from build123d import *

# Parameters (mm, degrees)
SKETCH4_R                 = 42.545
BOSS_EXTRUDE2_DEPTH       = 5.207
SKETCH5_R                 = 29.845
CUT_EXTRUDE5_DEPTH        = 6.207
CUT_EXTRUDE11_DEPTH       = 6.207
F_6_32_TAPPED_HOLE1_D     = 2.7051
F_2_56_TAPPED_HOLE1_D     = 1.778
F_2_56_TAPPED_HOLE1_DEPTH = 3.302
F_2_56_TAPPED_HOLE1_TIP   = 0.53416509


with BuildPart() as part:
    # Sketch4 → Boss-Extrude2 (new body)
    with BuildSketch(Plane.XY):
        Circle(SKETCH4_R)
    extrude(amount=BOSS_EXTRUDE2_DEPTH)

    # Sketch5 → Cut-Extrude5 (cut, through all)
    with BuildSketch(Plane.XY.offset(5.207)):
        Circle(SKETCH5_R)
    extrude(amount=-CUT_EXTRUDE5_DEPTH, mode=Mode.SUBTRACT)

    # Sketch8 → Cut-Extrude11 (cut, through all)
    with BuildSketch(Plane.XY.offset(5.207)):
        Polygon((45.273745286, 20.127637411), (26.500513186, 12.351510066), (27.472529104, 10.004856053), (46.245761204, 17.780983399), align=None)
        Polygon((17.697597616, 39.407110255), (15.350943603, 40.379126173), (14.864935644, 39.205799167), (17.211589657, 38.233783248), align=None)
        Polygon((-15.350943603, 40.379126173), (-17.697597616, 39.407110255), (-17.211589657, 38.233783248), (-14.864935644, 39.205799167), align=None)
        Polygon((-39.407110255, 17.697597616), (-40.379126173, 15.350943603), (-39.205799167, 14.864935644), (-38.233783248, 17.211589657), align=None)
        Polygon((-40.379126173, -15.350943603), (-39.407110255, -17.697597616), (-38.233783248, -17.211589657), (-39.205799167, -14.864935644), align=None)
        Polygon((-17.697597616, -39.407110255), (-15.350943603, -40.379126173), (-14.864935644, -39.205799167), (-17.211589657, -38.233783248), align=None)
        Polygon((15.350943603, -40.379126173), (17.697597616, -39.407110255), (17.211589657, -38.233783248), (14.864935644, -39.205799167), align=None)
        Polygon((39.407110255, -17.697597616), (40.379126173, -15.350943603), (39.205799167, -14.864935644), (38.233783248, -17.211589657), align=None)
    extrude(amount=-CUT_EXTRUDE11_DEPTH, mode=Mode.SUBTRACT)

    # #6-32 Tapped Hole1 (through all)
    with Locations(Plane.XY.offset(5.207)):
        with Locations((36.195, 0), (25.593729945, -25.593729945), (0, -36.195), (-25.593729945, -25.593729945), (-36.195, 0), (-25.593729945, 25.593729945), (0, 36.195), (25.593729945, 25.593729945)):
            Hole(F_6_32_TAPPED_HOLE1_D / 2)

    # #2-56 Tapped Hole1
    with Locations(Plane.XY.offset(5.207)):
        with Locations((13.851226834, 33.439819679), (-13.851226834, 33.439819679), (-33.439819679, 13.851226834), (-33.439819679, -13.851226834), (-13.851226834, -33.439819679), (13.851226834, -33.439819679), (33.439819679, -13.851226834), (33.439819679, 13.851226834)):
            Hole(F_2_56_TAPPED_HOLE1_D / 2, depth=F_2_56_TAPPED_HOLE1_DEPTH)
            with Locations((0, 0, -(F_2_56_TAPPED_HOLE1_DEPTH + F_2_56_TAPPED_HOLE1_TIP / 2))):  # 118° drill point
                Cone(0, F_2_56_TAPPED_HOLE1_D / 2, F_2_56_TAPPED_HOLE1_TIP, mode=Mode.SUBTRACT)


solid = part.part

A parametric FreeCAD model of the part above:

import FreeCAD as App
import Part
import Sketcher

V = App.Vector
Q = App.Units.Quantity

doc = App.newDocument("Part")
body = doc.addObject("PartDesign::Body", "Body")

# Sketch on XY plane
sketch1 = doc.addObject("Sketcher::SketchObject", "Sketch")
body.addObject(sketch1)
sketch1.AttachmentSupport = (doc.XY_Plane, [""])
sketch1.MapMode = "FlatFace"
sketch1.addGeometry(Part.Circle(V(0, 0, 0), V(0, 0, 1), 43), False)
sketch1.addConstraint([
    Sketcher.Constraint("Coincident", 0, 3, -1, 1),
    Sketcher.Constraint("Diameter", 0, Q("3.35 in")),
])
pad1 = doc.addObject("PartDesign::Pad", "Pad")
body.addObject(pad1)
pad1.Profile = sketch1
pad1.Length = Q("0.205 in")

# Sketch on XY plane
sketch2 = doc.addObject("Sketcher::SketchObject", "Sketch001")
body.addObject(sketch2)
sketch2.AttachmentSupport = (doc.XY_Plane, [""])
sketch2.MapMode = "FlatFace"
sketch2.AttachmentOffset = App.Placement(V(0, 0, 0.205 * 25.4), App.Rotation())
sketch2.addGeometry(Part.Circle(V(0, 0, 0), V(0, 0, 1), 30), False)
sketch2.addConstraint([
    Sketcher.Constraint("Coincident", 0, 3, -1, 1),
    Sketcher.Constraint("Diameter", 0, Q("2.35 in")),
])
pocket1 = doc.addObject("PartDesign::Pocket", "Pocket")
body.addObject(pocket1)
pocket1.Profile = sketch2
pocket1.Type = "ThroughAll"

# Sketch on XY plane
sketch3 = doc.addObject("Sketcher::SketchObject", "Sketch002")
body.addObject(sketch3)
sketch3.AttachmentSupport = (doc.XY_Plane, [""])
sketch3.MapMode = "FlatFace"
sketch3.AttachmentOffset = App.Placement(V(0, 0, 0.205 * 25.4), App.Rotation())
sketch3.addGeometry([
    Part.LineSegment(V(45.3, 20.1, 0), V(26.5, 12.4, 0)),  # 0
    Part.LineSegment(V(26.5, 12.4, 0), V(27.5, 10, 0)),  # 1
    Part.LineSegment(V(27.5, 10, 0), V(46.2, 17.8, 0)),  # 2
    Part.LineSegment(V(46.2, 17.8, 0), V(45.3, 20.1, 0)),  # 3
    Part.LineSegment(V(17.7, 39.4, 0), V(15.4, 40.4, 0)),  # 4
    Part.LineSegment(V(15.4, 40.4, 0), V(14.9, 39.2, 0)),  # 5
    Part.LineSegment(V(14.9, 39.2, 0), V(17.2, 38.2, 0)),  # 6
    Part.LineSegment(V(17.2, 38.2, 0), V(17.7, 39.4, 0)),  # 7
    Part.LineSegment(V(-15.4, 40.4, 0), V(-17.7, 39.4, 0)),  # 8
    Part.LineSegment(V(-17.7, 39.4, 0), V(-17.2, 38.2, 0)),  # 9
    Part.LineSegment(V(-17.2, 38.2, 0), V(-14.9, 39.2, 0)),  # 10
    Part.LineSegment(V(-14.9, 39.2, 0), V(-15.4, 40.4, 0)),  # 11
    Part.LineSegment(V(-39.4, 17.7, 0), V(-40.4, 15.4, 0)),  # 12
    Part.LineSegment(V(-40.4, 15.4, 0), V(-39.2, 14.9, 0)),  # 13
    Part.LineSegment(V(-39.2, 14.9, 0), V(-38.2, 17.2, 0)),  # 14
    Part.LineSegment(V(-38.2, 17.2, 0), V(-39.4, 17.7, 0)),  # 15
    Part.LineSegment(V(-40.4, -15.4, 0), V(-39.4, -17.7, 0)),  # 16
    Part.LineSegment(V(-39.4, -17.7, 0), V(-38.2, -17.2, 0)),  # 17
    Part.LineSegment(V(-38.2, -17.2, 0), V(-39.2, -14.9, 0)),  # 18
    Part.LineSegment(V(-39.2, -14.9, 0), V(-40.4, -15.4, 0)),  # 19
    Part.LineSegment(V(-17.7, -39.4, 0), V(-15.4, -40.4, 0)),  # 20
    Part.LineSegment(V(-15.4, -40.4, 0), V(-14.9, -39.2, 0)),  # 21
    Part.LineSegment(V(-14.9, -39.2, 0), V(-17.2, -38.2, 0)),  # 22
    Part.LineSegment(V(-17.2, -38.2, 0), V(-17.7, -39.4, 0)),  # 23
    Part.LineSegment(V(15.4, -40.4, 0), V(17.7, -39.4, 0)),  # 24
    Part.LineSegment(V(17.7, -39.4, 0), V(17.2, -38.2, 0)),  # 25
    Part.LineSegment(V(17.2, -38.2, 0), V(14.9, -39.2, 0)),  # 26
    Part.LineSegment(V(14.9, -39.2, 0), V(15.4, -40.4, 0)),  # 27
    Part.LineSegment(V(39.4, -17.7, 0), V(40.4, -15.4, 0)),  # 28
    Part.LineSegment(V(40.4, -15.4, 0), V(39.2, -14.9, 0)),  # 29
    Part.LineSegment(V(39.2, -14.9, 0), V(38.2, -17.2, 0)),  # 30
    Part.LineSegment(V(38.2, -17.2, 0), V(39.4, -17.7, 0)),  # 31
], False)
sketch3.addConstraint([
    Sketcher.Constraint("Coincident", 0, 2, 1, 1),
    Sketcher.Constraint("Coincident", 1, 2, 2, 1),
    Sketcher.Constraint("Coincident", 2, 2, 3, 1),
    Sketcher.Constraint("Coincident", 3, 2, 0, 1),
    Sketcher.Constraint("Coincident", 4, 2, 5, 1),
    Sketcher.Constraint("Coincident", 5, 2, 6, 1),
    Sketcher.Constraint("Coincident", 6, 2, 7, 1),
    Sketcher.Constraint("Coincident", 7, 2, 4, 1),
    Sketcher.Constraint("Coincident", 8, 2, 9, 1),
    Sketcher.Constraint("Coincident", 9, 2, 10, 1),
    Sketcher.Constraint("Coincident", 10, 2, 11, 1),
    Sketcher.Constraint("Coincident", 11, 2, 8, 1),
    Sketcher.Constraint("Coincident", 12, 2, 13, 1),
    Sketcher.Constraint("Coincident", 13, 2, 14, 1),
    Sketcher.Constraint("Coincident", 14, 2, 15, 1),
    Sketcher.Constraint("Coincident", 15, 2, 12, 1),
    Sketcher.Constraint("Coincident", 16, 2, 17, 1),
    Sketcher.Constraint("Coincident", 17, 2, 18, 1),
    Sketcher.Constraint("Coincident", 18, 2, 19, 1),
    Sketcher.Constraint("Coincident", 19, 2, 16, 1),
    Sketcher.Constraint("Coincident", 20, 2, 21, 1),
    Sketcher.Constraint("Coincident", 21, 2, 22, 1),
    Sketcher.Constraint("Coincident", 22, 2, 23, 1),
    Sketcher.Constraint("Coincident", 23, 2, 20, 1),
    Sketcher.Constraint("Coincident", 24, 2, 25, 1),
    Sketcher.Constraint("Coincident", 25, 2, 26, 1),
    Sketcher.Constraint("Coincident", 26, 2, 27, 1),
    Sketcher.Constraint("Coincident", 27, 2, 24, 1),
    Sketcher.Constraint("Coincident", 28, 2, 29, 1),
    Sketcher.Constraint("Coincident", 29, 2, 30, 1),
    Sketcher.Constraint("Coincident", 30, 2, 31, 1),
    Sketcher.Constraint("Coincident", 31, 2, 28, 1),
    Sketcher.Constraint("Symmetric", 4, 2, 20, 2, -1, 1),
    Sketcher.Constraint("Symmetric", 5, 2, 21, 2, -1, 1),
    Sketcher.Constraint("Symmetric", 6, 2, 22, 2, -1, 1),
    Sketcher.Constraint("Symmetric", 7, 2, 23, 2, -1, 1),
    Sketcher.Constraint("Symmetric", 8, 2, 24, 2, -1, 1),
    Sketcher.Constraint("Symmetric", 9, 2, 25, 2, -1, 1),
    Sketcher.Constraint("Symmetric", 10, 2, 26, 2, -1, 1),
    Sketcher.Constraint("Symmetric", 11, 2, 27, 2, -1, 1),
    Sketcher.Constraint("Symmetric", 12, 2, 28, 2, -1, 1),
    Sketcher.Constraint("Symmetric", 13, 2, 29, 2, -1, 1),
    Sketcher.Constraint("Symmetric", 14, 2, 30, 2, -1, 1),
    Sketcher.Constraint("Symmetric", 15, 2, 31, 2, -1, 1),
    Sketcher.Constraint("Symmetric", 7, 2, 8, 2, -2),
    Sketcher.Constraint("Symmetric", 6, 2, 9, 2, -2),
    Sketcher.Constraint("Symmetric", 5, 2, 10, 2, -2),
    Sketcher.Constraint("Symmetric", 4, 2, 11, 2, -2),
    Sketcher.Constraint("Symmetric", 19, 2, 28, 2, -2),
    Sketcher.Constraint("Symmetric", 18, 2, 29, 2, -2),
    Sketcher.Constraint("Symmetric", 17, 2, 30, 2, -2),
    Sketcher.Constraint("Symmetric", 16, 2, 31, 2, -2),
    Sketcher.Constraint("Perpendicular", 0, 1),
    Sketcher.Constraint("Perpendicular", 1, 2),
    Sketcher.Constraint("Perpendicular", 2, 3),
    Sketcher.Constraint("Perpendicular", 4, 5),
    Sketcher.Constraint("Perpendicular", 5, 6),
    Sketcher.Constraint("Perpendicular", 6, 7),
    Sketcher.Constraint("Perpendicular", 3, 8),
    Sketcher.Constraint("Parallel", 7, 12),
    Sketcher.Constraint("Perpendicular", 12, 13),
    Sketcher.Constraint("Perpendicular", 13, 14),
    Sketcher.Constraint("Perpendicular", 14, 15),
    Sketcher.Constraint("Equal", 3, 4),
    Sketcher.Constraint("Equal", 10, 12),
    Sketcher.Constraint("Equal", 11, 13),
    Sketcher.Constraint("Distance", 0, Q("0.8 in")),
    Sketcher.Constraint("Distance", 1, Q("0.1 in")),
    Sketcher.Constraint("Angle", 0, Q("-157.5 deg")),
    Sketcher.Constraint("Distance", 5, Q("0.05 in")),
    Sketcher.Constraint("DistanceY", -1, 1, 5, 2, Q("39.205799 mm")),
    Sketcher.Constraint("DistanceX", 13, 2, -1, 1, Q("39.205799 mm")),
    Sketcher.Constraint("DistanceX", 4, 2, 3, 2, Q("29.922802 mm")),
    Sketcher.Constraint("DistanceY", 0, 2, 7, 2, Q("27.0556 mm")),
    Sketcher.Constraint("DistanceX", 13, 2, 8, 2, Q("21.508202 mm")),
    Sketcher.Constraint("DistanceY", 21, 2, 16, 2, Q("21.508202 mm")),
])
pocket2 = doc.addObject("PartDesign::Pocket", "Pocket001")
body.addObject(pocket2)
pocket2.Profile = sketch3
pocket2.Type = "ThroughAll"

# Sketch on XY plane
sketch4 = doc.addObject("Sketcher::SketchObject", "Sketch003")
body.addObject(sketch4)
sketch4.AttachmentSupport = (doc.XY_Plane, [""])
sketch4.MapMode = "FlatFace"
sketch4.AttachmentOffset = App.Placement(V(0, 0, 0.205 * 25.4), App.Rotation())
sketch4.addGeometry([
    Part.Circle(V(36.2, 0, 0), V(0, 0, 1), 1.4),  # 0
    Part.Circle(V(25.6, -25.6, 0), V(0, 0, 1), 1.4),  # 1
    Part.Circle(V(0, -36.2, 0), V(0, 0, 1), 1.4),  # 2
    Part.Circle(V(-25.6, -25.6, 0), V(0, 0, 1), 1.4),  # 3
    Part.Circle(V(-36.2, 0, 0), V(0, 0, 1), 1.4),  # 4
    Part.Circle(V(-25.6, 25.6, 0), V(0, 0, 1), 1.4),  # 5
    Part.Circle(V(0, 36.2, 0), V(0, 0, 1), 1.4),  # 6
    Part.Circle(V(25.6, 25.6, 0), V(0, 0, 1), 1.4),  # 7
], False)
sketch4.addConstraint([
    Sketcher.Constraint("Equal", 0, 1),
    Sketcher.Constraint("Equal", 1, 2),
    Sketcher.Constraint("Equal", 2, 3),
    Sketcher.Constraint("Equal", 3, 4),
    Sketcher.Constraint("Equal", 4, 5),
    Sketcher.Constraint("Equal", 5, 6),
    Sketcher.Constraint("Equal", 6, 7),
    Sketcher.Constraint("Symmetric", 0, 3, 4, 3, -1, 1),
    Sketcher.Constraint("Symmetric", 1, 3, 5, 3, -1, 1),
    Sketcher.Constraint("Symmetric", 2, 3, 6, 3, -1, 1),
    Sketcher.Constraint("Symmetric", 3, 3, 7, 3, -1, 1),
    Sketcher.Constraint("Symmetric", 1, 3, 3, 3, -2),
    Sketcher.Constraint("PointOnObject", 0, 3, -1),
    Sketcher.Constraint("PointOnObject", 2, 3, -2),
    Sketcher.Constraint("Diameter", 0, Q("0.1065 in")),
    Sketcher.Constraint("DistanceX", 4, 3, 0, 3, Q("2.85 in")),
    Sketcher.Constraint("DistanceY", 2, 3, -1, 1, Q("1.425 in")),
    Sketcher.Constraint("DistanceX", -1, 1, 1, 3, Q("25.59373 mm")),
    Sketcher.Constraint("DistanceY", 1, 3, -1, 1, Q("25.59373 mm")),
])
doc.recompute()
hole = doc.addObject("PartDesign::Hole", "Hole")
body.addObject(hole)
hole.Profile = sketch4
hole.ThreadType = "None"
hole.Diameter = Q("0.1065 in")
hole.DepthType = "ThroughAll"

# Sketch on XY plane
sketch5 = doc.addObject("Sketcher::SketchObject", "Sketch004")
body.addObject(sketch5)
sketch5.AttachmentSupport = (doc.XY_Plane, [""])
sketch5.MapMode = "FlatFace"
sketch5.AttachmentOffset = App.Placement(V(0, 0, 0.205 * 25.4), App.Rotation())
sketch5.addGeometry([
    Part.Circle(V(13.9, 33.4, 0), V(0, 0, 1), 0.9),  # 0
    Part.Circle(V(-13.9, 33.4, 0), V(0, 0, 1), 0.9),  # 1
    Part.Circle(V(-33.4, 13.9, 0), V(0, 0, 1), 0.9),  # 2
    Part.Circle(V(-33.4, -13.9, 0), V(0, 0, 1), 0.9),  # 3
    Part.Circle(V(-13.9, -33.4, 0), V(0, 0, 1), 0.9),  # 4
    Part.Circle(V(13.9, -33.4, 0), V(0, 0, 1), 0.9),  # 5
    Part.Circle(V(33.4, -13.9, 0), V(0, 0, 1), 0.9),  # 6
    Part.Circle(V(33.4, 13.9, 0), V(0, 0, 1), 0.9),  # 7
], False)
sketch5.addConstraint([
    Sketcher.Constraint("Equal", 0, 1),
    Sketcher.Constraint("Equal", 1, 2),
    Sketcher.Constraint("Equal", 2, 3),
    Sketcher.Constraint("Equal", 3, 4),
    Sketcher.Constraint("Equal", 4, 5),
    Sketcher.Constraint("Equal", 5, 6),
    Sketcher.Constraint("Equal", 6, 7),
    Sketcher.Constraint("Symmetric", 0, 3, 4, 3, -1, 1),
    Sketcher.Constraint("Symmetric", 1, 3, 5, 3, -1, 1),
    Sketcher.Constraint("Symmetric", 2, 3, 6, 3, -1, 1),
    Sketcher.Constraint("Symmetric", 3, 3, 7, 3, -1, 1),
    Sketcher.Constraint("Symmetric", 0, 3, 1, 3, -2),
    Sketcher.Constraint("Symmetric", 3, 3, 6, 3, -2),
    Sketcher.Constraint("Diameter", 0, Q("0.07 in")),
    Sketcher.Constraint("DistanceY", -1, 1, 0, 3, Q("33.43982 mm")),
    Sketcher.Constraint("DistanceX", 2, 3, -1, 1, Q("33.43982 mm")),
    Sketcher.Constraint("DistanceX", -1, 1, 0, 3, Q("13.851227 mm")),
    Sketcher.Constraint("DistanceY", -1, 1, 2, 3, Q("13.851227 mm")),
])
doc.recompute()
hole2 = doc.addObject("PartDesign::Hole", "Hole001")
body.addObject(hole2)
hole2.Profile = sketch5
hole2.ThreadType = "None"
hole2.Diameter = Q("0.07 in")
hole2.DepthType = "Dimension"
hole2.Depth = Q("0.13 in")
hole2.DrillPoint = "Angled"
hole2.DrillPointAngle = 118

doc.recompute()
